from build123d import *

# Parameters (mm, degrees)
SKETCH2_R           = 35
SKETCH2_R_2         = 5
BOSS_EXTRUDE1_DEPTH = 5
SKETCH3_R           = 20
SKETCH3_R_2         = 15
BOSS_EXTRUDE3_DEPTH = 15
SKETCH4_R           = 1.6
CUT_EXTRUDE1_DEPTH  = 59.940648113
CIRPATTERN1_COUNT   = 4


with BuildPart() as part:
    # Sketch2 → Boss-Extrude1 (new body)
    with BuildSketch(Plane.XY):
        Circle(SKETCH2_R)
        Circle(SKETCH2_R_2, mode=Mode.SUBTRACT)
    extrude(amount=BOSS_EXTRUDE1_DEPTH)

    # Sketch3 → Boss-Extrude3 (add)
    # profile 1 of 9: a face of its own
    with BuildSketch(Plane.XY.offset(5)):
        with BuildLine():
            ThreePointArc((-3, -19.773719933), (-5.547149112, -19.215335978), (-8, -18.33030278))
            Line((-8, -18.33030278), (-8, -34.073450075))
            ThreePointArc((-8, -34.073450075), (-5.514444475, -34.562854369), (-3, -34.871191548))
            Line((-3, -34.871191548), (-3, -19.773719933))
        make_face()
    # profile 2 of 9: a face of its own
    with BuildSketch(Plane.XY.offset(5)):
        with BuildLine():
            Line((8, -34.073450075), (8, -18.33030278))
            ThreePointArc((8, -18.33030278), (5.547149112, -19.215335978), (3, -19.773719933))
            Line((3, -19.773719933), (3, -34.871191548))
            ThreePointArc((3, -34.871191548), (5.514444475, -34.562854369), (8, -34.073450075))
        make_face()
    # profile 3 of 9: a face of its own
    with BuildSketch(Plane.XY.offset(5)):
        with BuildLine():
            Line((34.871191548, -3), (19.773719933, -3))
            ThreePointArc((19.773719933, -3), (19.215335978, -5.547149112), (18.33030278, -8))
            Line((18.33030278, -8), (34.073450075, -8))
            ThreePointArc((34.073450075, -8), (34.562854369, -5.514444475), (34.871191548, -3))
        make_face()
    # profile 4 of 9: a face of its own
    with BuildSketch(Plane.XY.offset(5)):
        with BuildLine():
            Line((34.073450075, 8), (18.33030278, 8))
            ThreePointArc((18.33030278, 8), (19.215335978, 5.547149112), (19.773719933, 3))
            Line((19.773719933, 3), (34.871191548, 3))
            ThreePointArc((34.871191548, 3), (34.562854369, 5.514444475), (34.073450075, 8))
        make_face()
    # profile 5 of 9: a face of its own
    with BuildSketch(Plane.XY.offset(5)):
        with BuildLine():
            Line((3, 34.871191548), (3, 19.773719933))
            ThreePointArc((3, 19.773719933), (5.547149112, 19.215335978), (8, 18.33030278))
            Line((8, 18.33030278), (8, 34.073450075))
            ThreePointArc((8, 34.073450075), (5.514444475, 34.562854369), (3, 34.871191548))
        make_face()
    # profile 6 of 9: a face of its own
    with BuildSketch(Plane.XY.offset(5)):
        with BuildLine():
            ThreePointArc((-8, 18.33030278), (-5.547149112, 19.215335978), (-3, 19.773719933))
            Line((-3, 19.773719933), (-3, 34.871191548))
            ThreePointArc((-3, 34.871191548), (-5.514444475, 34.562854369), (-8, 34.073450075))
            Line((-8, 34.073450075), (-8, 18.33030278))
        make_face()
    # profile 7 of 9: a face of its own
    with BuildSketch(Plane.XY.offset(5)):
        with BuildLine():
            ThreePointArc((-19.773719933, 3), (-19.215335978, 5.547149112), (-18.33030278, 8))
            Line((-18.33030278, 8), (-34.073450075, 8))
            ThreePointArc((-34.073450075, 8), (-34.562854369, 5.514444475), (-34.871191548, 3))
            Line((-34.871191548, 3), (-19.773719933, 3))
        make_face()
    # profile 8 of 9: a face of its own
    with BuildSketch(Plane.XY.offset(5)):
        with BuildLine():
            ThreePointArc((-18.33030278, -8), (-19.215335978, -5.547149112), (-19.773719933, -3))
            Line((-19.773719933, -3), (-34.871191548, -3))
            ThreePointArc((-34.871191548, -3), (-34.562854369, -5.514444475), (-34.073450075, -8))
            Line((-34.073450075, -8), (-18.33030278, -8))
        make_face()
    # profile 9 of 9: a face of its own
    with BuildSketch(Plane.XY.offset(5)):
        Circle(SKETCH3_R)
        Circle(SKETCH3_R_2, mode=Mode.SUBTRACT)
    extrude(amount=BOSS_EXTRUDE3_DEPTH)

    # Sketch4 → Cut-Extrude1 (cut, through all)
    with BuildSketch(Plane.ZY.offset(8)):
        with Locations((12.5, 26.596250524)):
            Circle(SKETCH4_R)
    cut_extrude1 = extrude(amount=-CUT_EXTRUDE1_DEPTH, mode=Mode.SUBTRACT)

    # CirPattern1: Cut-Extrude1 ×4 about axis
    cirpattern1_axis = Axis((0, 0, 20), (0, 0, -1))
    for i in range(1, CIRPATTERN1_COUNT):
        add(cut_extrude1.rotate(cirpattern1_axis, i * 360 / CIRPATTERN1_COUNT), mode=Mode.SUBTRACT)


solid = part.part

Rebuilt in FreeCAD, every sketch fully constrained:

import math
import FreeCAD as App
import Part
import Sketcher
from FreeCAD import Vector
Q = App.Units.Quantity

doc = App.newDocument("Part")
body = doc.addObject("PartDesign::Body", "Body")

# Sketch on XY plane
sketch1 = doc.addObject("Sketcher::SketchObject", "Sketch")
body.addObject(sketch1)
sketch1.AttachmentSupport = (doc.XY_Plane, [""])
sketch1.MapMode = "FlatFace"
sketch1.addGeometry(Part.Circle(Vector(0, 0, 0), Vector(0, 0, 1), 35), False)
sketch1.addGeometry(Part.Circle(Vector(0, 0, 0), Vector(0, 0, 1), 5), False)
sketch1.addConstraint(Sketcher.Constraint("Coincident", 0, 3, -1, 1))
sketch1.addConstraint(Sketcher.Constraint("Coincident", 1, 3, -1, 1))
sketch1.addConstraint(Sketcher.Constraint("Diameter", 0, Q("70 mm")))
sketch1.addConstraint(Sketcher.Constraint("Diameter", 1, Q("10 mm")))
pad1 = doc.addObject("PartDesign::Pad", "Pad")
body.addObject(pad1)
pad1.Profile = sketch1
pad1.Length = 5

# Sketch on XY plane
sketch2 = doc.addObject("Sketcher::SketchObject", "Sketch001")
body.addObject(sketch2)
sketch2.AttachmentSupport = (doc.XY_Plane, [""])
sketch2.MapMode = "FlatFace"
sketch2.AttachmentOffset = App.Placement(Vector(0, 0, 5), App.Rotation())
sketch2.addGeometry(Part.LineSegment(Vector(-8, -18, 0), Vector(-8, -34, 0)), False)
sketch2.addGeometry(Part.ArcOfCircle(Part.Circle(Vector(0, 0, 0), Vector(0, 0, 1), 35), math.radians(-103.21), math.radians(-94.92)), False)
sketch2.addGeometry(Part.LineSegment(Vector(-3, -35, 0), Vector(-3, -20, 0)), False)
sketch2.addGeometry(Part.ArcOfCircle(Part.Circle(Vector(0, 0, 0), Vector(0, 0, 1), 20), math.radians(-98.63), math.radians(-81.37)), False)
sketch2.addGeometry(Part.LineSegment(Vector(3, -20, 0), Vector(3, -35, 0)), False)
sketch2.addGeometry(Part.ArcOfCircle(Part.Circle(Vector(0, 0, 0), Vector(0, 0, 1), 35), math.radians(-85.08), math.radians(-76.79)), False)
sketch2.addGeometry(Part.LineSegment(Vector(8, -34, 0), Vector(8, -18, 0)), False)
sketch2.addGeometry(Part.ArcOfCircle(Part.Circle(Vector(0, 0, 0), Vector(0, 0, 1), 20), math.radians(-66), math.radians(-24)), False)
sketch2.addGeometry(Part.LineSegment(Vector(18, -8, 0), Vector(34, -8, 0)), False)
sketch2.addGeometry(Part.ArcOfCircle(Part.Circle(Vector(0, 0, 0), Vector(0, 0, 1), 35), math.radians(-13.21), math.radians(-4.92)), False)
sketch2.addGeometry(Part.LineSegment(Vector(35, -3, 0), Vector(20, -3, 0)), False)
sketch2.addGeometry(Part.ArcOfCircle(Part.Circle(Vector(0, 0, 0), Vector(0, 0, 1), 20), math.radians(-8.63), math.radians(8.63)), False)
sketch2.addGeometry(Part.LineSegment(Vector(20, 3, 0), Vector(35, 3, 0)), False)
sketch2.addGeometry(Part.ArcOfCircle(Part.Circle(Vector(0, 0, 0), Vector(0, 0, 1), 35), math.radians(4.92), math.radians(13.21)), False)
sketch2.addGeometry(Part.LineSegment(Vector(34, 8, 0), Vector(18, 8, 0)), False)
sketch2.addGeometry(Part.ArcOfCircle(Part.Circle(Vector(0, 0, 0), Vector(0, 0, 1), 20), math.radians(24), math.radians(66)), False)
sketch2.addGeometry(Part.LineSegment(Vector(8, 18, 0), Vector(8, 34, 0)), False)
sketch2.addGeometry(Part.ArcOfCircle(Part.Circle(Vector(0, 0, 0), Vector(0, 0, 1), 35), math.radians(76.79), math.radians(85.08)), False)
sketch2.addGeometry(Part.LineSegment(Vector(3, 35, 0), Vector(3, 20, 0)), False)
sketch2.addGeometry(Part.ArcOfCircle(Part.Circle(Vector(0, 0, 0), Vector(0, 0, 1), 20), math.radians(81.37), math.radians(98.63)), False)
sketch2.addGeometry(Part.LineSegment(Vector(-3, 20, 0), Vector(-3, 35, 0)), False)
sketch2.addGeometry(Part.ArcOfCircle(Part.Circle(Vector(0, 0, 0), Vector(0, 0, 1), 35), math.radians(94.92), math.radians(103.21)), False)
sketch2.addGeometry(Part.LineSegment(Vector(-8, 34, 0), Vector(-8, 18, 0)), False)
sketch2.addGeometry(Part.ArcOfCircle(Part.Circle(Vector(0, 0, 0), Vector(0, 0, 1), 20), math.radians(114), math.radians(156)), False)
sketch2.addGeometry(Part.LineSegment(Vector(-18, 8, 0), Vector(-34, 8, 0)), False)
sketch2.addGeometry(Part.ArcOfCircle(Part.Circle(Vector(0, 0, 0), Vector(0, 0, 1), 35), math.radians(166.79), math.radians(175.08)), False)
sketch2.addGeometry(Part.LineSegment(Vector(-35, 3, 0), Vector(-20, 3, 0)), False)
sketch2.addGeometry(Part.ArcOfCircle(Part.Circle(Vector(0, 0, 0), Vector(0, 0, 1), 20), math.radians(171.37), math.radians(188.63)), False)
sketch2.addGeometry(Part.LineSegment(Vector(-20, -3, 0), Vector(-35, -3, 0)), False)
sketch2.addGeometry(Part.ArcOfCircle(Part.Circle(Vector(0, 0, 0), Vector(0, 0, 1), 35), math.radians(-175.08), math.radians(-166.79)), False)
sketch2.addGeometry(Part.LineSegment(Vector(-34, -8, 0), Vector(-18, -8, 0)), False)
sketch2.addGeometry(Part.ArcOfCircle(Part.Circle(Vector(0, 0, 0), Vector(0, 0, 1), 20), math.radians(-156), math.radians(-114)), False)
sketch2.addGeometry(Part.Circle(Vector(0, 0, 0), Vector(0, 0, 1), 15), False)
sketch2.addConstraint(Sketcher.Constraint("Coincident", 0, 2, 1, 1))
sketch2.addConstraint(Sketcher.Constraint("Coincident", 1, 2, 2, 1))
sketch2.addConstraint(Sketcher.Constraint("Coincident", 2, 2, 3, 1))
sketch2.addConstraint(Sketcher.Constraint("Coincident", 3, 2, 4, 1))
sketch2.addConstraint(Sketcher.Constraint("Coincident", 4, 2, 5, 1))
sketch2.addConstraint(Sketcher.Constraint("Coincident", 5, 2, 6, 1))
sketch2.addConstraint(Sketcher.Constraint("Coincident", 6, 2, 7, 1))
sketch2.addConstraint(Sketcher.Constraint("Coincident", 7, 2, 8, 1))
sketch2.addConstraint(Sketcher.Constraint("Coincident", 8, 2, 9, 1))
sketch2.addConstraint(Sketcher.Constraint("Coincident", 9, 2, 10, 1))
sketch2.addConstraint(Sketcher.Constraint("Coincident", 10, 2, 11, 1))
sketch2.addConstraint(Sketcher.Constraint("Coincident", 11, 2, 12, 1))
sketch2.addConstraint(Sketcher.Constraint("Coincident", 12, 2, 13, 1))
sketch2.addConstraint(Sketcher.Constraint("Coincident", 13, 2, 14, 1))
sketch2.addConstraint(Sketcher.Constraint("Coincident", 14, 2, 15, 1))
sketch2.addConstraint(Sketcher.Constraint("Coincident", 15, 2, 16, 1))
sketch2.addConstraint(Sketcher.Constraint("Coincident", 16, 2, 17, 1))
sketch2.addConstraint(Sketcher.Constraint("Coincident", 17, 2, 18, 1))
sketch2.addConstraint(Sketcher.Constraint("Coincident", 18, 2, 19, 1))
sketch2.addConstraint(Sketcher.Constraint("Coincident", 19, 2, 20, 1))
sketch2.addConstraint(Sketcher.Constraint("Coincident", 20, 2, 21, 1))
sketch2.addConstraint(Sketcher.Constraint("Coincident", 21, 2, 22, 1))
sketch2.addConstraint(Sketcher.Constraint("Coincident", 22, 2, 23, 1))
sketch2.addConstraint(Sketcher.Constraint("Coincident", 23, 2, 24, 1))
sketch2.addConstraint(Sketcher.Constraint("Coincident", 24, 2, 25, 1))
sketch2.addConstraint(Sketcher.Constraint("Coincident", 25, 2, 26, 1))
sketch2.addConstraint(Sketcher.Constraint("Coincident", 26, 2, 27, 1))
sketch2.addConstraint(Sketcher.Constraint("Coincident", 27, 2, 28, 1))
sketch2.addConstraint(Sketcher.Constraint("Coincident", 28, 2, 29, 1))
sketch2.addConstraint(Sketcher.Constraint("Coincident", 29, 2, 30, 1))
sketch2.addConstraint(Sketcher.Constraint("Coincident", 30, 2, 31, 1))
sketch2.addConstraint(Sketcher.Constraint("Coincident", 31, 2, 0, 1))
sketch2.addConstraint(Sketcher.Constraint("Vertical", 0))
sketch2.addConstraint(Sketcher.Constraint("Vertical", 2))
sketch2.addConstraint(Sketcher.Constraint("Vertical", 4))
sketch2.addConstraint(Sketcher.Constraint("Vertical", 6))
sketch2.addConstraint(Sketcher.Constraint("Horizontal", 8))
sketch2.addConstraint(Sketcher.Constraint("Horizontal", 10))
sketch2.addConstraint(Sketcher.Constraint("Horizontal", 12))
sketch2.addConstraint(Sketcher.Constraint("Horizontal", 14))
sketch2.addConstraint(Sketcher.Constraint("Vertical", 16))
sketch2.addConstraint(Sketcher.Constraint("Vertical", 18))
sketch2.addConstraint(Sketcher.Constraint("Vertical", 20))
sketch2.addConstraint(Sketcher.Constraint("Vertical", 22))
sketch2.addConstraint(Sketcher.Constraint("Horizontal", 24))
sketch2.addConstraint(Sketcher.Constraint("Horizontal", 26))
sketch2.addConstraint(Sketcher.Constraint("Horizontal", 28))
sketch2.addConstraint(Sketcher.Constraint("Horizontal", 30))
sketch2.addConstraint(Sketcher.Constraint("Coincident", 1, 3, -1, 1))
sketch2.addConstraint(Sketcher.Constraint("Coincident", 3, 3, -1, 1))
sketch2.addConstraint(Sketcher.Constraint("Coincident", 5, 3, -1, 1))
sketch2.addConstraint(Sketcher.Constraint("Coincident", 7, 3, -1, 1))
sketch2.addConstraint(Sketcher.Constraint("Coincident", 9, 3, -1, 1))
sketch2.addConstraint(Sketcher.Constraint("Coincident", 11, 3, -1, 1))
sketch2.addConstraint(Sketcher.Constraint("Coincident", 13, 3, -1, 1))
sketch2.addConstraint(Sketcher.Constraint("Coincident", 15, 3, -1, 1))
sketch2.addConstraint(Sketcher.Constraint("Coincident", 17, 3, -1, 1))
sketch2.addConstraint(Sketcher.Constraint("Coincident", 19, 3, -1, 1))
sketch2.addConstraint(Sketcher.Constraint("Coincident", 21, 3, -1, 1))
sketch2.addConstraint(Sketcher.Constraint("Coincident", 23, 3, -1, 1))
sketch2.addConstraint(Sketcher.Constraint("Coincident", 25, 3, -1, 1))
sketch2.addConstraint(Sketcher.Constraint("Coincident", 27, 3, -1, 1))
sketch2.addConstraint(Sketcher.Constraint("Coincident", 29, 3, -1, 1))
sketch2.addConstraint(Sketcher.Constraint("Coincident", 31, 3, -1, 1))
sketch2.addConstraint(Sketcher.Constraint("Coincident", 32, 3, -1, 1))
sketch2.addConstraint(Sketcher.Constraint("Equal", 1, 5))
sketch2.addConstraint(Sketcher.Constraint("Equal", 3, 7))
sketch2.addConstraint(Sketcher.Constraint("Equal", 5, 9))
sketch2.addConstraint(Sketcher.Constraint("Equal", 7, 11))
sketch2.addConstraint(Sketcher.Constraint("Equal", 9, 13))
sketch2.addConstraint(Sketcher.Constraint("Equal", 11, 15))
sketch2.addConstraint(Sketcher.Constraint("Equal", 13, 17))
sketch2.addConstraint(Sketcher.Constraint("Equal", 15, 19))
sketch2.addConstraint(Sketcher.Constraint("Equal", 17, 21))
sketch2.addConstraint(Sketcher.Constraint("Equal", 19, 23))
sketch2.addConstraint(Sketcher.Constraint("Equal", 21, 25))
sketch2.addConstraint(Sketcher.Constraint("Equal", 23, 27))
sketch2.addConstraint(Sketcher.Constraint("Equal", 25, 29))
sketch2.addConstraint(Sketcher.Constraint("Equal", 27, 31))
sketch2.addConstraint(Sketcher.Constraint("Horizontal", 2, 2, 3, 2))
sketch2.addConstraint(Sketcher.Constraint("Horizontal", 0, 2, 5, 2))
sketch2.addConstraint(Sketcher.Constraint("Horizontal", 18, 2, 19, 2))
sketch2.addConstraint(Sketcher.Constraint("Horizontal", 16, 2, 21, 2))
sketch2.addConstraint(Sketcher.Constraint("Horizontal", 14, 2, 23, 2))
sketch2.addConstraint(Sketcher.Constraint("Horizontal", 12, 2, 25, 2))
sketch2.addConstraint(Sketcher.Constraint("Horizontal", 10, 2, 27, 2))
sketch2.addConstraint(Sketcher.Constraint("Horizontal", 8, 2, 29, 2))
sketch2.addConstraint(Sketcher.Constraint("Vertical", 10, 2, 11, 2))
sketch2.addConstraint(Sketcher.Constraint("Vertical", 8, 2, 13, 2))
sketch2.addConstraint(Sketcher.Constraint("Vertical", 6, 2, 15, 2))
sketch2.addConstraint(Sketcher.Constraint("Vertical", 4, 2, 17, 2))
sketch2.addConstraint(Sketcher.Constraint("Equal", 30, 0))
sketch2.addConstraint(Sketcher.Constraint("Equal", 28, 2))
sketch2.addConstraint(Sketcher.Constraint("Diameter", 32, Q("30 mm")))
sketch2.addConstraint(Sketcher.Constraint("Radius", 1, Q("35 mm")))
sketch2.addConstraint(Sketcher.Constraint("Radius", 3, Q("20 mm")))
sketch2.addConstraint(Sketcher.Constraint("DistanceX", 0, 2, -1, 1, Q("8 mm")))
sketch2.addConstraint(Sketcher.Constraint("DistanceX", 1, 2, -1, 1, Q("3 mm")))
pad2 = doc.addObject("PartDesign::Pad", "Pad001")
body.addObject(pad2)
pad2.Profile = sketch2
pad2.Length = 15

# Sketch on YZ plane
sketch3 = doc.addObject("Sketcher::SketchObject", "Sketch002")
body.addObject(sketch3)
sketch3.AttachmentSupport = (doc.YZ_Plane, [""])
sketch3.MapMode = "FlatFace"
sketch3.AttachmentOffset = App.Placement(Vector(0, 0, -8), App.Rotation())
sketch3.addGeometry(Part.Circle(Vector(26.6, 12.5, 0), Vector(0, 0, 1), 1.6), False)
sketch3.addConstraint(Sketcher.Constraint("Diameter", 0, Q("3.2 mm")))
sketch3.addConstraint(Sketcher.Constraint("DistanceY", -1, 1, 0, 3, Q("12.5 mm")))
sketch3.addConstraint(Sketcher.Constraint("DistanceX", -1, 1, 0, 3, Q("26.596251 mm")))
pocket1 = doc.addObject("PartDesign::Pocket", "Pocket")
body.addObject(pocket1)
pocket1.Profile = sketch3
pocket1.Type = "ThroughAll"
pocket1.Reversed = True
doc.recompute()

polarpattern = doc.addObject("PartDesign::PolarPattern", "PolarPattern")
body.addObject(polarpattern)
polarpattern.Originals = [pocket1]
polarpattern.Axis = (doc.Z_Axis, [""])
polarpattern.Angle = 360
polarpattern.Occurrences = 4
body.Tip = polarpattern

doc.recompute()
